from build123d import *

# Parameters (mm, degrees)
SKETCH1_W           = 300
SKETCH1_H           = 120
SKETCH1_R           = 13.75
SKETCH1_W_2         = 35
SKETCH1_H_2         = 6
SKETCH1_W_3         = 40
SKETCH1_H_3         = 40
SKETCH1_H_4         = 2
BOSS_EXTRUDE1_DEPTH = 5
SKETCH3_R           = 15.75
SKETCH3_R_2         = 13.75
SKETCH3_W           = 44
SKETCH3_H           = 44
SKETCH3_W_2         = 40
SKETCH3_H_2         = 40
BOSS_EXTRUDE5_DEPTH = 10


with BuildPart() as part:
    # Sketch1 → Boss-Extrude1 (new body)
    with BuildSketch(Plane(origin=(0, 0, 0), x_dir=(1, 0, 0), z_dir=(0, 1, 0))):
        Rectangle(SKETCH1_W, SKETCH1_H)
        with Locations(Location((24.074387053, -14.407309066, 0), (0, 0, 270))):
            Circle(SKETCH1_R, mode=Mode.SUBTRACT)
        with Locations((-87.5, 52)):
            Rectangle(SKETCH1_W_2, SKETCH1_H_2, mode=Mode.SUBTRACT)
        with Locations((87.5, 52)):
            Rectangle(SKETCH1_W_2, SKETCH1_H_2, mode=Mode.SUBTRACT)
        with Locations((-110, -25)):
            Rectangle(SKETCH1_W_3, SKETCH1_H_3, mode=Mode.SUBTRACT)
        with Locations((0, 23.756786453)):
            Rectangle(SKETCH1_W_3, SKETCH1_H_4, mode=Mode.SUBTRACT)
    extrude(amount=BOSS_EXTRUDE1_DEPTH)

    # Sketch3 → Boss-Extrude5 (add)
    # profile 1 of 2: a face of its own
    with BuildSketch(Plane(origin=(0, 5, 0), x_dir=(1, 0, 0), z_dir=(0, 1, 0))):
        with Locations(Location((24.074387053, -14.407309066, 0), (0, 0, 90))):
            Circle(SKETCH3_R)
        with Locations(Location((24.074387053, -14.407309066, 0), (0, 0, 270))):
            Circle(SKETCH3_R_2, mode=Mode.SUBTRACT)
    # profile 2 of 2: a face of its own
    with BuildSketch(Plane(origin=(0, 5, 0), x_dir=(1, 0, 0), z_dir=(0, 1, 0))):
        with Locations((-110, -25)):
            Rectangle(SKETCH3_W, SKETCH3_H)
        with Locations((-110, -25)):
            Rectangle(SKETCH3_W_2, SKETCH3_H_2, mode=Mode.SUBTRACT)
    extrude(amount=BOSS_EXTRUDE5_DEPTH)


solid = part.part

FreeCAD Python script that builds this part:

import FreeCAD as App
import Part
import Sketcher

V = App.Vector
Q = App.Units.Quantity

doc = App.newDocument("Part")
params = doc.addObject("Spreadsheet::Sheet", "Params")
for row, (alias, value) in enumerate([
    ("sketch1_diameter", "27.5 mm"),
    ("sketch1_width", "300 mm"),
    ("sketch1_width2", "40 mm"),
    ("sketch1_width3", "35 mm"),
    ("sketch1_height", "120 mm"),
    ("pad1_length", "5 mm"),
    ("sketch2_diameter", "31.5 mm"),
    ("sketch2_diameter2", "27.5 mm"),
    ("sketch2_width", "44 mm"),
    ("sketch2_width2", "40 mm"),
    ("pad2_length", "10 mm"),
], start=1):
    params.set(f"A{row}", alias)
    params.set(f"B{row}", "=" + value)
    params.setAlias(f"B{row}", alias)

body = doc.addObject("PartDesign::Body", "Body")

# Sketch on XZ plane
sketch1 = body.newObject("Sketcher::SketchObject", "Sketch")
sketch1.AttachmentSupport = (doc.getObject("XZ_Plane"), [""])
sketch1.MapMode = "FlatFace"
sketch1.addGeometry([
    Part.LineSegment(V(-150, -60, 0), V(-150, 60, 0)),  # 0
    Part.LineSegment(V(-150, 60, 0), V(150, 60, 0)),  # 1
    Part.LineSegment(V(150, 60, 0), V(150, -60, 0)),  # 2
    Part.LineSegment(V(150, -60, 0), V(-150, -60, 0)),  # 3
    Part.LineSegment(V(-90, 45, 0), V(-130, 45, 0)),  # 4
    Part.LineSegment(V(-130, 45, 0), V(-130, 5, 0)),  # 5
    Part.LineSegment(V(-130, 5, 0), V(-90, 5, 0)),  # 6
    Part.LineSegment(V(-90, 5, 0), V(-90, 45, 0)),  # 7
    Part.Circle(V(24.1, 14.4, 0), V(0, 0, 1), 13.8),  # 8
    Part.LineSegment(V(-70, -49, 0), V(-105, -49, 0)),  # 9
    Part.LineSegment(V(-105, -49, 0), V(-105, -55, 0)),  # 10
    Part.LineSegment(V(-105, -55, 0), V(-70, -55, 0)),  # 11
    Part.LineSegment(V(-70, -55, 0), V(-70, -49, 0)),  # 12
    Part.LineSegment(V(20, -22.8, 0), V(-20, -22.8, 0)),  # 13
    Part.LineSegment(V(-20, -22.8, 0), V(-20, -24.8, 0)),  # 14
    Part.LineSegment(V(-20, -24.8, 0), V(20, -24.8, 0)),  # 15
    Part.LineSegment(V(20, -24.8, 0), V(20, -22.8, 0)),  # 16
    Part.LineSegment(V(105, -49, 0), V(70, -49, 0)),  # 17
    Part.LineSegment(V(70, -49, 0), V(70, -55, 0)),  # 18
    Part.LineSegment(V(70, -55, 0), V(105, -55, 0)),  # 19
    Part.LineSegment(V(105, -55, 0), V(105, -49, 0)),  # 20
], False)
sketch1.addConstraint([
    Sketcher.Constraint("Coincident", 0, 2, 1, 1),
    Sketcher.Constraint("Coincident", 1, 2, 2, 1),
    Sketcher.Constraint("Coincident", 2, 2, 3, 1),
    Sketcher.Constraint("Coincident", 3, 2, 0, 1),
    Sketcher.Constraint("Coincident", 4, 2, 5, 1),
    Sketcher.Constraint("Coincident", 5, 2, 6, 1),
    Sketcher.Constraint("Coincident", 6, 2, 7, 1),
    Sketcher.Constraint("Coincident", 7, 2, 4, 1),
    Sketcher.Constraint("Coincident", 9, 2, 10, 1),
    Sketcher.Constraint("Coincident", 10, 2, 11, 1),
    Sketcher.Constraint("Coincident", 11, 2, 12, 1),
    Sketcher.Constraint("Coincident", 12, 2, 9, 1),
    Sketcher.Constraint("Coincident", 13, 2, 14, 1),
    Sketcher.Constraint("Coincident", 14, 2, 15, 1),
    Sketcher.Constraint("Coincident", 15, 2, 16, 1),
    Sketcher.Constraint("Coincident", 16, 2, 13, 1),
    Sketcher.Constraint("Coincident", 17, 2, 18, 1),
    Sketcher.Constraint("Coincident", 18, 2, 19, 1),
    Sketcher.Constraint("Coincident", 19, 2, 20, 1),
    Sketcher.Constraint("Coincident", 20, 2, 17, 1),
    Sketcher.Constraint("Vertical", 0),
    Sketcher.Constraint("Horizontal", 1),
    Sketcher.Constraint("Vertical", 2),
    Sketcher.Constraint("Horizontal", 3),
    Sketcher.Constraint("Horizontal", 4),
    Sketcher.Constraint("Vertical", 5),
    Sketcher.Constraint("Horizontal", 6),
    Sketcher.Constraint("Vertical", 7),
    Sketcher.Constraint("Horizontal", 9),
    Sketcher.Constraint("Vertical", 10),
    Sketcher.Constraint("Horizontal", 11),
    Sketcher.Constraint("Vertical", 12),
    Sketcher.Constraint("Horizontal", 13),
    Sketcher.Constraint("Vertical", 14),
    Sketcher.Constraint("Horizontal", 15),
    Sketcher.Constraint("Vertical", 16),
    Sketcher.Constraint("Horizontal", 17),
    Sketcher.Constraint("Vertical", 18),
    Sketcher.Constraint("Horizontal", 19),
    Sketcher.Constraint("Vertical", 20),
    Sketcher.Constraint("Symmetric", 0, 2, 2, 2, -1, 1),
    Sketcher.Constraint("Symmetric", 12, 2, 17, 2, -2),
    Sketcher.Constraint("Symmetric", 10, 2, 19, 2, -2),
    Sketcher.Constraint("Equal", 6, 13),
    Sketcher.Constraint("Equal", 15, 5),
    Sketcher.Constraint("Diameter", 8, Q("27.5 mm")),
    Sketcher.Constraint("DistanceX", 1, 1, 1, 2, Q("300 mm")),
    Sketcher.Constraint("DistanceX", 4, 2, 4, 1, Q("40 mm")),
    Sketcher.Constraint("DistanceX", 9, 2, 9, 1, Q("35 mm")),
    Sketcher.Constraint("DistanceY", 0, 1, 0, 2, Q("120 mm")),
    Sketcher.Constraint("DistanceY", 10, 2, 10, 1, Q("6 mm")),
    Sketcher.Constraint("DistanceY", 14, 2, 14, 1, Q("2 mm")),
    Sketcher.Constraint("DistanceX", 4, 2, -1, 1, Q("130 mm")),
    Sketcher.Constraint("DistanceY", -1, 1, 4, 2, Q("45 mm")),
    Sketcher.Constraint("DistanceX", 9, 2, -1, 1, Q("105 mm")),
    Sketcher.Constraint("DistanceY", 9, 2, -1, 1, Q("49 mm")),
    Sketcher.Constraint("DistanceX", 13, 2, -1, 1, Q("20 mm")),
    Sketcher.Constraint("DistanceY", -1, 1, 8, 3, Q("14.407309 mm")),
    Sketcher.Constraint("DistanceX", -1, 1, 8, 3, Q("24.074387 mm")),
    Sketcher.Constraint("DistanceY", 13, 2, -1, 1, Q("22.756786 mm")),
])
sketch1.setExpression("Constraints[45]", "Params.sketch1_diameter")
sketch1.setExpression("Constraints[46]", "Params.sketch1_width")
sketch1.setExpression("Constraints[47]", "Params.sketch1_width2")
sketch1.setExpression("Constraints[48]", "Params.sketch1_width3")
sketch1.setExpression("Constraints[49]", "Params.sketch1_height")
pad1 = body.newObject("PartDesign::Pad", "Pad")
pad1.Profile = sketch1
pad1.setExpression("Length", "Params.pad1_length")
pad1.Reversed = True

# Sketch on XZ plane
sketch2 = body.newObject("Sketcher::SketchObject", "Sketch001")
sketch2.AttachmentSupport = (doc.getObject("XZ_Plane"), [""])
sketch2.MapMode = "FlatFace"
sketch2.AttachmentOffset = App.Placement(V(0, 0, -5), App.Rotation())
sketch2.addGeometry([
    Part.Circle(V(24, 14, 0), V(0, 0, 1), 16),  # 0
    Part.Circle(V(24, 14, 0), V(0, 0, 1), 14),  # 1
    Part.LineSegment(V(-132, 3, 0), V(-132, 47, 0)),  # 2
    Part.LineSegment(V(-132, 47, 0), V(-88, 47, 0)),  # 3
    Part.LineSegment(V(-88, 47, 0), V(-88, 3, 0)),  # 4
    Part.LineSegment(V(-88, 3, 0), V(-132, 3, 0)),  # 5
    Part.LineSegment(V(-90, 45, 0), V(-130, 45, 0)),  # 6
    Part.LineSegment(V(-130, 45, 0), V(-130, 5, 0)),  # 7
    Part.LineSegment(V(-130, 5, 0), V(-90, 5, 0)),  # 8
    Part.LineSegment(V(-90, 5, 0), V(-90, 45, 0)),  # 9
], False)
sketch2.addConstraint([
    Sketcher.Constraint("Coincident", 2, 2, 3, 1),
    Sketcher.Constraint("Coincident", 3, 2, 4, 1),
    Sketcher.Constraint("Coincident", 4, 2, 5, 1),
    Sketcher.Constraint("Coincident", 5, 2, 2, 1),
    Sketcher.Constraint("Coincident", 6, 2, 7, 1),
    Sketcher.Constraint("Coincident", 7, 2, 8, 1),
    Sketcher.Constraint("Coincident", 8, 2, 9, 1),
    Sketcher.Constraint("Coincident", 9, 2, 6, 1),
    Sketcher.Constraint("Vertical", 2),
    Sketcher.Constraint("Horizontal", 3),
    Sketcher.Constraint("Vertical", 4),
    Sketcher.Constraint("Horizontal", 5),
    Sketcher.Constraint("Horizontal", 6),
    Sketcher.Constraint("Vertical", 7),
    Sketcher.Constraint("Horizontal", 8),
    Sketcher.Constraint("Vertical", 9),
    Sketcher.Constraint("Coincident", 1, 3, 0, 3),
    Sketcher.Constraint("Equal", 5, 2),
    Sketcher.Constraint("Equal", 8, 7),
    Sketcher.Constraint("Diameter", 0, Q("31.5 mm")),
    Sketcher.Constraint("Diameter", 1, Q("27.5 mm")),
    Sketcher.Constraint("DistanceX", 3, 1, 3, 2, Q("44 mm")),
    Sketcher.Constraint("DistanceX", 6, 2, 6, 1, Q("40 mm")),
    Sketcher.Constraint("DistanceX", 2, 2, -1, 1, Q("132 mm")),
    Sketcher.Constraint("DistanceY", -1, 1, 2, 2, Q("47 mm")),
    Sketcher.Constraint("DistanceX", 6, 2, -1, 1, Q("130 mm")),
    Sketcher.Constraint("DistanceY", -1, 1, 6, 2, Q("45 mm")),
    Sketcher.Constraint("DistanceY", -1, 1, 0, 3, Q("14.407309 mm")),
    Sketcher.Constraint("DistanceX", -1, 1, 0, 3, Q("24.074387 mm")),
])
sketch2.setExpression("Constraints[19]", "Params.sketch2_diameter")
sketch2.setExpression("Constraints[20]", "Params.sketch2_diameter2")
sketch2.setExpression("Constraints[21]", "Params.sketch2_width")
sketch2.setExpression("Constraints[22]", "Params.sketch2_width2")
pad2 = body.newObject("PartDesign::Pad", "Pad001")
pad2.Profile = sketch2
pad2.setExpression("Length", "Params.pad2_length")
pad2.Reversed = True

doc.recompute()
